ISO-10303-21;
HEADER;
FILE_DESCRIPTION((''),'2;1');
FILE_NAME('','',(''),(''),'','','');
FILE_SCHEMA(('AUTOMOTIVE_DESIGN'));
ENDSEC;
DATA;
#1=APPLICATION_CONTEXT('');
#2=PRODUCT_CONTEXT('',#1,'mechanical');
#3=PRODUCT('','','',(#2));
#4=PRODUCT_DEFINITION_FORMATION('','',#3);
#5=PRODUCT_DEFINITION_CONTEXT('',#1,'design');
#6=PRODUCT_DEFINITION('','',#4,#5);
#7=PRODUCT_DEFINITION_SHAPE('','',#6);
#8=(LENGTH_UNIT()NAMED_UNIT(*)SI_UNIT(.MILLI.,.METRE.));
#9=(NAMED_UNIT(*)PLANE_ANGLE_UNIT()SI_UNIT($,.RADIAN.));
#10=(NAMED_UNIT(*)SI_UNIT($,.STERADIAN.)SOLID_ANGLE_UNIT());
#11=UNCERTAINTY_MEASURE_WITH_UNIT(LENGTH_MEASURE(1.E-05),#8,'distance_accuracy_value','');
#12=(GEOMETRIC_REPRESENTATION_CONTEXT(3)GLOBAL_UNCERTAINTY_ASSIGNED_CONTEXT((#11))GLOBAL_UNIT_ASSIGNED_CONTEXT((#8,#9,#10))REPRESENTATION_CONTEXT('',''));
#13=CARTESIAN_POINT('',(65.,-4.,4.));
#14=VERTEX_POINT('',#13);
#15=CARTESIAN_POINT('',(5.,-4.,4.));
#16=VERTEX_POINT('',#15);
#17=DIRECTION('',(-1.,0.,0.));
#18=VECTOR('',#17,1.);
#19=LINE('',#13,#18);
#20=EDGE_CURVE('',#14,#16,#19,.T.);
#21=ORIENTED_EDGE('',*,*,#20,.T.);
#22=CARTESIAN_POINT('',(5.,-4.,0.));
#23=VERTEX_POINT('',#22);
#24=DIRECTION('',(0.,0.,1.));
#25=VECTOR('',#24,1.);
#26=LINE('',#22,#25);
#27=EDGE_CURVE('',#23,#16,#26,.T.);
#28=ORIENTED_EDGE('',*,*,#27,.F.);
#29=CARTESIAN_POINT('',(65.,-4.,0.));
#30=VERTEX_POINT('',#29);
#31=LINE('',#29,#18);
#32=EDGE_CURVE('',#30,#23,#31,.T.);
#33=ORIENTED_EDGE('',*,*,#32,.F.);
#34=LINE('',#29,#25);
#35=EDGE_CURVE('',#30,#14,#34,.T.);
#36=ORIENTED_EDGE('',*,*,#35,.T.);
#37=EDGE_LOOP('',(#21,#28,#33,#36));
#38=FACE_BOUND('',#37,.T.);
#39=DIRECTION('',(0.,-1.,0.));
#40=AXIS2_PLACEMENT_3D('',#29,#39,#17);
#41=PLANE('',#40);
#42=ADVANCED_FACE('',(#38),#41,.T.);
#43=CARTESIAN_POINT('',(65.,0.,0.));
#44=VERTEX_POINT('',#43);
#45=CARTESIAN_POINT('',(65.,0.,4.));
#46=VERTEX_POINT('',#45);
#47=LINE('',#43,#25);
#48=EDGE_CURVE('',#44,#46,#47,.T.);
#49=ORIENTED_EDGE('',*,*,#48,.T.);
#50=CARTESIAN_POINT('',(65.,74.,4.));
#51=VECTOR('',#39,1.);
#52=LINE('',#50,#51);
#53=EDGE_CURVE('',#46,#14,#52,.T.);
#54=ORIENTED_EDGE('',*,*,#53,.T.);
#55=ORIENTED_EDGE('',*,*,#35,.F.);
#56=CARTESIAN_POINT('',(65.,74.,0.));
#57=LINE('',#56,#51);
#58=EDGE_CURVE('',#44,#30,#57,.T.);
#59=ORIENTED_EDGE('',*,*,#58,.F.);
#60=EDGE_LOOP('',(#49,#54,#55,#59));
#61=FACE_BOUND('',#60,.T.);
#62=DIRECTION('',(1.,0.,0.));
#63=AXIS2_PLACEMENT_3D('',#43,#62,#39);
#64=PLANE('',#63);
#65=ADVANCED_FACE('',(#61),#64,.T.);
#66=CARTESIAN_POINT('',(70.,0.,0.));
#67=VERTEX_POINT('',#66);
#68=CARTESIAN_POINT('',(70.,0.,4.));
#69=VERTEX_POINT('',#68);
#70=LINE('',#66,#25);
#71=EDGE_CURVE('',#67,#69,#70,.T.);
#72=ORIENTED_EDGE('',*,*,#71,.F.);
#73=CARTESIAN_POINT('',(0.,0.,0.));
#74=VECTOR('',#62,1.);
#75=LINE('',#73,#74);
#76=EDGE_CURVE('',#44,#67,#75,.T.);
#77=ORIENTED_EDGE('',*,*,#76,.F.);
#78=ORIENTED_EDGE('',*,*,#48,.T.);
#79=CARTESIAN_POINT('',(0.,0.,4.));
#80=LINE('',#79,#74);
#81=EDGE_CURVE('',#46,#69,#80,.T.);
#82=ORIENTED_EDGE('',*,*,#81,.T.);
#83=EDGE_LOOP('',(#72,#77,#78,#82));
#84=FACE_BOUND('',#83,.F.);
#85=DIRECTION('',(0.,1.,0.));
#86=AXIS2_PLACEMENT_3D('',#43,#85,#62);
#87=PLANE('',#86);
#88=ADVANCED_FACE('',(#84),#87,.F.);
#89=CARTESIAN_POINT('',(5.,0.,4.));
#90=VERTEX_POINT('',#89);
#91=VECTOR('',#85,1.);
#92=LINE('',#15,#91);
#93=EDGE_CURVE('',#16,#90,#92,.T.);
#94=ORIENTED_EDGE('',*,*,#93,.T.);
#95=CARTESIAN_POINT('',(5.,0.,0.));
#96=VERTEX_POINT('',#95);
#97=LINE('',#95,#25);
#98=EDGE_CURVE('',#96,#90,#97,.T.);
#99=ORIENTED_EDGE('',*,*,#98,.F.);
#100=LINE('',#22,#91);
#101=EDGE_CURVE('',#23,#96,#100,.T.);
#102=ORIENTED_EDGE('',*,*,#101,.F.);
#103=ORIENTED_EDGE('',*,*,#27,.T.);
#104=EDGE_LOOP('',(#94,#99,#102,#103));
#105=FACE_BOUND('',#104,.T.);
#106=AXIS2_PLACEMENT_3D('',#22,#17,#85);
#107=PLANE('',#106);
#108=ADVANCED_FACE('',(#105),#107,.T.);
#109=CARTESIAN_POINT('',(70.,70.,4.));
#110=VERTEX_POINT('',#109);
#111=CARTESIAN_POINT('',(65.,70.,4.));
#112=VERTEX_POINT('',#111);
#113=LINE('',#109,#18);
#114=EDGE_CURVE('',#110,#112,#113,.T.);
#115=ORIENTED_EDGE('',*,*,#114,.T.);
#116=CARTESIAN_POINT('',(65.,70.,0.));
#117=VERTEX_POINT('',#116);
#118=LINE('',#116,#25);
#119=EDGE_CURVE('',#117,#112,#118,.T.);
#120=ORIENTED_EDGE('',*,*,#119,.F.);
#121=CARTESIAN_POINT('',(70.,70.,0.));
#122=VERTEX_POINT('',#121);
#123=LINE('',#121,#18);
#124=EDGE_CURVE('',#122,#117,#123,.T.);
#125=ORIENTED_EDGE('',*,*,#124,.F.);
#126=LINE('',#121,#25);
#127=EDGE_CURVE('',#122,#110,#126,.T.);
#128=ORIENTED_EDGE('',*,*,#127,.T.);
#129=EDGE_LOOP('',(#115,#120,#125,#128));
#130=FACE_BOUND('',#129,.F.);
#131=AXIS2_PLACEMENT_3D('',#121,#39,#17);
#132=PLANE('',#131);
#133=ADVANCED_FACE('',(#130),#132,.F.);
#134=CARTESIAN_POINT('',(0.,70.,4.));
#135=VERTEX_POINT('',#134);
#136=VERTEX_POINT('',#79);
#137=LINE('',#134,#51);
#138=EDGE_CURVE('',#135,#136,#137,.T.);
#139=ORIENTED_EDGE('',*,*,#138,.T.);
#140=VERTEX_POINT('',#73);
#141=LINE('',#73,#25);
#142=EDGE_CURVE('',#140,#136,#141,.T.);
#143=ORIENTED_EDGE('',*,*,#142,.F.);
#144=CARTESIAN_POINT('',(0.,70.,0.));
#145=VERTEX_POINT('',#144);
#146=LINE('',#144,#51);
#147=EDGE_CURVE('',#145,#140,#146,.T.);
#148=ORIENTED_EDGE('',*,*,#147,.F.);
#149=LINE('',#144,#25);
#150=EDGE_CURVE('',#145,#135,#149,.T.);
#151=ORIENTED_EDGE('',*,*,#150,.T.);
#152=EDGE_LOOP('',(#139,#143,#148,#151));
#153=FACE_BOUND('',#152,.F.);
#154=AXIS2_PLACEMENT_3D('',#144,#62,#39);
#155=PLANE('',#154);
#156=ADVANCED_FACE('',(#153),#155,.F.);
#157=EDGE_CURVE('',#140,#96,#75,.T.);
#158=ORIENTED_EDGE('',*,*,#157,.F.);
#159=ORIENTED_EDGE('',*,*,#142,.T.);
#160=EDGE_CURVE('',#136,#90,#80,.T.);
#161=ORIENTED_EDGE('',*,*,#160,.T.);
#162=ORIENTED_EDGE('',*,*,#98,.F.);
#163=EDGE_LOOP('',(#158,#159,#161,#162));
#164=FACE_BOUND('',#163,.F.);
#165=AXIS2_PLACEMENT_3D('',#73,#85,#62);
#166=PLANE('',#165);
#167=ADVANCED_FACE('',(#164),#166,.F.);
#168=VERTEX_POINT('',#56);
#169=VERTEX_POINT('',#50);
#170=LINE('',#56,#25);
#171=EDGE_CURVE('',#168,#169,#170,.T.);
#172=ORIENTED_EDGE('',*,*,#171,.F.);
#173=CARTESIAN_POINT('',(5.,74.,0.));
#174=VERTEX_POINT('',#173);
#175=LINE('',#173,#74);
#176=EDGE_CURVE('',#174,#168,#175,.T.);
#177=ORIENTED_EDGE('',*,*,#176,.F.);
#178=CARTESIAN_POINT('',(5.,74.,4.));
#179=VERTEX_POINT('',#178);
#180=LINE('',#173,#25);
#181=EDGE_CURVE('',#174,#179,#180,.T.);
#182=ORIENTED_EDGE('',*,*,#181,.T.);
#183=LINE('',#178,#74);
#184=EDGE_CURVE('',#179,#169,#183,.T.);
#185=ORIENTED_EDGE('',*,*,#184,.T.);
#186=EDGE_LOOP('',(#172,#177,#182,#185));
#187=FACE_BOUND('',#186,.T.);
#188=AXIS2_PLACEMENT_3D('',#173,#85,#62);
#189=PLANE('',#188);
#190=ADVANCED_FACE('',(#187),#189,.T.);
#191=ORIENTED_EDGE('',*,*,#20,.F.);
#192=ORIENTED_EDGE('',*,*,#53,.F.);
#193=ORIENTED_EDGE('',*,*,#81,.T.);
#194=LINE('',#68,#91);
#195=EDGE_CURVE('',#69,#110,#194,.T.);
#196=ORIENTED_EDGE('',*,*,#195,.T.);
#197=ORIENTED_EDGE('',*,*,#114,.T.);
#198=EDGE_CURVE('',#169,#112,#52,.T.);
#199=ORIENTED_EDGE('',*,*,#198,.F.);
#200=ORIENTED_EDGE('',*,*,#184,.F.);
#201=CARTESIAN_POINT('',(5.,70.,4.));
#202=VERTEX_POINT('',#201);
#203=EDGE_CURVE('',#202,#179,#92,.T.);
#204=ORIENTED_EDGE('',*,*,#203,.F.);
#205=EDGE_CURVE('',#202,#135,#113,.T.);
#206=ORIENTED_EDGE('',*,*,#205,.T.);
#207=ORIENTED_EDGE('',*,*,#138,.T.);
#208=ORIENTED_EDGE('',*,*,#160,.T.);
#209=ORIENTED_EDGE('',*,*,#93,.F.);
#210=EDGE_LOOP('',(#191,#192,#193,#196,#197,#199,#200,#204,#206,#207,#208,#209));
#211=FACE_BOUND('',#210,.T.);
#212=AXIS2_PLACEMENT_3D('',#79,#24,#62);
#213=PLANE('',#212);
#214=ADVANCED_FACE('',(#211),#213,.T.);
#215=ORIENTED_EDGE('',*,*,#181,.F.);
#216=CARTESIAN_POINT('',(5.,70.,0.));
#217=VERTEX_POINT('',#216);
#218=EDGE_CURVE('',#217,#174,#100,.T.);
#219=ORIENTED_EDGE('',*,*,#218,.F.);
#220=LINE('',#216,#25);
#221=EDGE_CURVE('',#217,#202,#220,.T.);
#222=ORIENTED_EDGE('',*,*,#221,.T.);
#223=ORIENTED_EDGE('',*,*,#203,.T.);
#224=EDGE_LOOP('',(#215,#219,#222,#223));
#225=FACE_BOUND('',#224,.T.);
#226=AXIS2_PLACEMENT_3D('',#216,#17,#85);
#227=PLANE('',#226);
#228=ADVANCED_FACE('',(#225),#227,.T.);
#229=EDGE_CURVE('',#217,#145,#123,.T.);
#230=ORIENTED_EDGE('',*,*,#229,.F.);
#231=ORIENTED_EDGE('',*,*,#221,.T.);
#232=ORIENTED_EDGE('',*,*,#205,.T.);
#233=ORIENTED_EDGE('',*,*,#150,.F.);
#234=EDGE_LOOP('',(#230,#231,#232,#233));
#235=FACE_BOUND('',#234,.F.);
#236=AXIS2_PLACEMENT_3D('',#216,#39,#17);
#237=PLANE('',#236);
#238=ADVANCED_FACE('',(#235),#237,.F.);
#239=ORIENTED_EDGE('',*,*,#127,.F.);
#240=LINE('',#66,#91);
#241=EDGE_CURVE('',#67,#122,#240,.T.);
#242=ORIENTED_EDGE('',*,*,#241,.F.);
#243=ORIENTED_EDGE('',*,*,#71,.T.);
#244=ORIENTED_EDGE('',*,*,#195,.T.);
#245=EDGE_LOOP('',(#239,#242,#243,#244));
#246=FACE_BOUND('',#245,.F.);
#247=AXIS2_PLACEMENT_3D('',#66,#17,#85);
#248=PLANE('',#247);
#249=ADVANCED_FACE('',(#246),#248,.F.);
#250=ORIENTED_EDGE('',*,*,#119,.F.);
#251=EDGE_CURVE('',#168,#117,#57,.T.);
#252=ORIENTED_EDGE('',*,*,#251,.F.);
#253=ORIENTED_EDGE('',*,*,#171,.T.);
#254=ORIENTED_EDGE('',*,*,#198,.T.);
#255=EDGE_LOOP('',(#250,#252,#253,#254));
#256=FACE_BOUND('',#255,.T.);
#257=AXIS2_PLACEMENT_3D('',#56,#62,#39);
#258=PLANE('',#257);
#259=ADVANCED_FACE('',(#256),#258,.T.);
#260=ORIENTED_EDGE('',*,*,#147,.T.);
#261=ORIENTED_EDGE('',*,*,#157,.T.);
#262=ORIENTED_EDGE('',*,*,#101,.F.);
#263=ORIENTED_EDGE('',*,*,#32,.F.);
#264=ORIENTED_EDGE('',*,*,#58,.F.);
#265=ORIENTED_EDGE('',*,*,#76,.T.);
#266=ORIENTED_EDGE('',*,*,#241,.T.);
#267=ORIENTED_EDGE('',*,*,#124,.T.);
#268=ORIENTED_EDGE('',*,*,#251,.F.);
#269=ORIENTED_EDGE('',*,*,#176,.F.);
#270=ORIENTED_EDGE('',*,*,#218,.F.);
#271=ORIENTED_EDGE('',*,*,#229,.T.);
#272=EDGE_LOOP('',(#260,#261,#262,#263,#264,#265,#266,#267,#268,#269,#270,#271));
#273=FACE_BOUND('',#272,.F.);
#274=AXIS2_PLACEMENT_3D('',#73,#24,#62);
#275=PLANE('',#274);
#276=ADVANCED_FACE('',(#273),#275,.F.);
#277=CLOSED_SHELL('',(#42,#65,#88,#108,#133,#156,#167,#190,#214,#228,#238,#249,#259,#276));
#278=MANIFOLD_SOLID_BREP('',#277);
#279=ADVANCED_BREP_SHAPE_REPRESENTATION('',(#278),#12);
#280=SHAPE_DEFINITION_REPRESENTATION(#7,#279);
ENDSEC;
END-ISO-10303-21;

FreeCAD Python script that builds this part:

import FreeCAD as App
import Part
import Sketcher


def add_polygon(sketch, points):
    """Adds a closed chain of lines whose ends are joined by coincident constraints."""
    first, n = sketch.GeometryCount, len(points)
    for a, b in zip(points, points[1:] + points[:1]):
        sketch.addGeometry(Part.LineSegment(App.Vector(*a, 0), App.Vector(*b, 0)), False)
    for i in range(n):
        sketch.addConstraint(Sketcher.Constraint("Coincident", first + i, 2, first + (i + 1) % n, 1))

doc = App.newDocument("Part")
body = doc.addObject("PartDesign::Body", "Body")

sketch1 = body.newObject("Sketcher::SketchObject", "Sketch")
sketch1.AttachmentSupport = (doc.getObject("XY_Plane"), [""])
sketch1.MapMode = "FlatFace"
add_polygon(sketch1, [(0, 70), (0, 0), (5, 0), (5, -4), (65, -4), (65, 0), (70, 0), (70, 70), (65, 70), (65, 74), (5, 74), (5, 70)])
add_polygon(sketch1, [(31, 41.5), (39, 41.5), (39, 28.5), (31, 28.5)])
sketch1.addConstraint(Sketcher.Constraint("Vertical", 0))
sketch1.addConstraint(Sketcher.Constraint("Horizontal", 1))
sketch1.addConstraint(Sketcher.Constraint("Vertical", 2))
sketch1.addConstraint(Sketcher.Constraint("Horizontal", 3))
sketch1.addConstraint(Sketcher.Constraint("Vertical", 4))
sketch1.addConstraint(Sketcher.Constraint("Horizontal", 5))
sketch1.addConstraint(Sketcher.Constraint("Vertical", 6))
sketch1.addConstraint(Sketcher.Constraint("Horizontal", 7))
sketch1.addConstraint(Sketcher.Constraint("Vertical", 8))
sketch1.addConstraint(Sketcher.Constraint("Horizontal", 9))
sketch1.addConstraint(Sketcher.Constraint("Vertical", 10))
sketch1.addConstraint(Sketcher.Constraint("Horizontal", 11))
sketch1.addConstraint(Sketcher.Constraint("Horizontal", 12))
sketch1.addConstraint(Sketcher.Constraint("Vertical", 13))
sketch1.addConstraint(Sketcher.Constraint("Horizontal", 14))
sketch1.addConstraint(Sketcher.Constraint("Vertical", 15))
sketch1.addConstraint(Sketcher.Constraint("Coincident", 0, 2, -1, 1))
sketch1.addConstraint(Sketcher.Constraint("PointOnObject", 4, 2, -1))
sketch1.addConstraint(Sketcher.Constraint("Horizontal", 7, 2, 10, 2))
sketch1.addConstraint(Sketcher.Constraint("Vertical", 4, 2, 7, 2))
sketch1.addConstraint(Sketcher.Constraint("Vertical", 2, 2, 9, 2))
sketch1.addConstraint(Sketcher.Constraint("Equal", 1, 5))
sketch1.addConstraint(Sketcher.Constraint("Equal", 4, 8))
sketch1.addConstraint(Sketcher.Constraint("DistanceX", 1, 1, 1, 2, 5.0))
sketch1.addConstraint(Sketcher.Constraint("DistanceX", 12, 1, 12, 2, 8.0))
sketch1.addConstraint(Sketcher.Constraint("DistanceY", 0, 2, 0, 1, 70.0))
sketch1.addConstraint(Sketcher.Constraint("DistanceY", 2, 2, 2, 1, 4.0))
sketch1.addConstraint(Sketcher.Constraint("DistanceY", 13, 2, 13, 1, 13.0))
sketch1.addConstraint(Sketcher.Constraint("DistanceX", -1, 1, 5, 2, 70.0))
sketch1.addConstraint(Sketcher.Constraint("DistanceX", 12, 2, 7, 2, 26.0))
sketch1.addConstraint(Sketcher.Constraint("DistanceY", -1, 1, 13, 2, 28.5))
pad1 = body.newObject("PartDesign::Pad", "Pad")
pad1.Profile = sketch1
pad1.Length = 4

sketch2 = body.newObject("Sketcher::SketchObject", "Sketch001")
sketch2.AttachmentSupport = (doc.getObject("XY_Plane"), [""])
sketch2.MapMode = "FlatFace"
add_polygon(sketch2, [(39, 42), (31, 42), (31, 28), (39, 28)])
sketch2.addConstraint(Sketcher.Constraint("Horizontal", 0))
sketch2.addConstraint(Sketcher.Constraint("Vertical", 1))
sketch2.addConstraint(Sketcher.Constraint("Horizontal", 2))
sketch2.addConstraint(Sketcher.Constraint("Vertical", 3))
sketch2.addConstraint(Sketcher.Constraint("DistanceX", 0, 2, 0, 1, 8.0))
sketch2.addConstraint(Sketcher.Constraint("DistanceY", 1, 2, 1, 1, 13.0))
sketch2.addConstraint(Sketcher.Constraint("DistanceY", -1, 1, 1, 2, 28.5))
sketch2.addConstraint(Sketcher.Constraint("DistanceX", -1, 1, 0, 2, 31.0))
pad2 = body.newObject("PartDesign::Pad", "Pad001")
pad2.Profile = sketch2
pad2.Length = 4

doc.recompute()
